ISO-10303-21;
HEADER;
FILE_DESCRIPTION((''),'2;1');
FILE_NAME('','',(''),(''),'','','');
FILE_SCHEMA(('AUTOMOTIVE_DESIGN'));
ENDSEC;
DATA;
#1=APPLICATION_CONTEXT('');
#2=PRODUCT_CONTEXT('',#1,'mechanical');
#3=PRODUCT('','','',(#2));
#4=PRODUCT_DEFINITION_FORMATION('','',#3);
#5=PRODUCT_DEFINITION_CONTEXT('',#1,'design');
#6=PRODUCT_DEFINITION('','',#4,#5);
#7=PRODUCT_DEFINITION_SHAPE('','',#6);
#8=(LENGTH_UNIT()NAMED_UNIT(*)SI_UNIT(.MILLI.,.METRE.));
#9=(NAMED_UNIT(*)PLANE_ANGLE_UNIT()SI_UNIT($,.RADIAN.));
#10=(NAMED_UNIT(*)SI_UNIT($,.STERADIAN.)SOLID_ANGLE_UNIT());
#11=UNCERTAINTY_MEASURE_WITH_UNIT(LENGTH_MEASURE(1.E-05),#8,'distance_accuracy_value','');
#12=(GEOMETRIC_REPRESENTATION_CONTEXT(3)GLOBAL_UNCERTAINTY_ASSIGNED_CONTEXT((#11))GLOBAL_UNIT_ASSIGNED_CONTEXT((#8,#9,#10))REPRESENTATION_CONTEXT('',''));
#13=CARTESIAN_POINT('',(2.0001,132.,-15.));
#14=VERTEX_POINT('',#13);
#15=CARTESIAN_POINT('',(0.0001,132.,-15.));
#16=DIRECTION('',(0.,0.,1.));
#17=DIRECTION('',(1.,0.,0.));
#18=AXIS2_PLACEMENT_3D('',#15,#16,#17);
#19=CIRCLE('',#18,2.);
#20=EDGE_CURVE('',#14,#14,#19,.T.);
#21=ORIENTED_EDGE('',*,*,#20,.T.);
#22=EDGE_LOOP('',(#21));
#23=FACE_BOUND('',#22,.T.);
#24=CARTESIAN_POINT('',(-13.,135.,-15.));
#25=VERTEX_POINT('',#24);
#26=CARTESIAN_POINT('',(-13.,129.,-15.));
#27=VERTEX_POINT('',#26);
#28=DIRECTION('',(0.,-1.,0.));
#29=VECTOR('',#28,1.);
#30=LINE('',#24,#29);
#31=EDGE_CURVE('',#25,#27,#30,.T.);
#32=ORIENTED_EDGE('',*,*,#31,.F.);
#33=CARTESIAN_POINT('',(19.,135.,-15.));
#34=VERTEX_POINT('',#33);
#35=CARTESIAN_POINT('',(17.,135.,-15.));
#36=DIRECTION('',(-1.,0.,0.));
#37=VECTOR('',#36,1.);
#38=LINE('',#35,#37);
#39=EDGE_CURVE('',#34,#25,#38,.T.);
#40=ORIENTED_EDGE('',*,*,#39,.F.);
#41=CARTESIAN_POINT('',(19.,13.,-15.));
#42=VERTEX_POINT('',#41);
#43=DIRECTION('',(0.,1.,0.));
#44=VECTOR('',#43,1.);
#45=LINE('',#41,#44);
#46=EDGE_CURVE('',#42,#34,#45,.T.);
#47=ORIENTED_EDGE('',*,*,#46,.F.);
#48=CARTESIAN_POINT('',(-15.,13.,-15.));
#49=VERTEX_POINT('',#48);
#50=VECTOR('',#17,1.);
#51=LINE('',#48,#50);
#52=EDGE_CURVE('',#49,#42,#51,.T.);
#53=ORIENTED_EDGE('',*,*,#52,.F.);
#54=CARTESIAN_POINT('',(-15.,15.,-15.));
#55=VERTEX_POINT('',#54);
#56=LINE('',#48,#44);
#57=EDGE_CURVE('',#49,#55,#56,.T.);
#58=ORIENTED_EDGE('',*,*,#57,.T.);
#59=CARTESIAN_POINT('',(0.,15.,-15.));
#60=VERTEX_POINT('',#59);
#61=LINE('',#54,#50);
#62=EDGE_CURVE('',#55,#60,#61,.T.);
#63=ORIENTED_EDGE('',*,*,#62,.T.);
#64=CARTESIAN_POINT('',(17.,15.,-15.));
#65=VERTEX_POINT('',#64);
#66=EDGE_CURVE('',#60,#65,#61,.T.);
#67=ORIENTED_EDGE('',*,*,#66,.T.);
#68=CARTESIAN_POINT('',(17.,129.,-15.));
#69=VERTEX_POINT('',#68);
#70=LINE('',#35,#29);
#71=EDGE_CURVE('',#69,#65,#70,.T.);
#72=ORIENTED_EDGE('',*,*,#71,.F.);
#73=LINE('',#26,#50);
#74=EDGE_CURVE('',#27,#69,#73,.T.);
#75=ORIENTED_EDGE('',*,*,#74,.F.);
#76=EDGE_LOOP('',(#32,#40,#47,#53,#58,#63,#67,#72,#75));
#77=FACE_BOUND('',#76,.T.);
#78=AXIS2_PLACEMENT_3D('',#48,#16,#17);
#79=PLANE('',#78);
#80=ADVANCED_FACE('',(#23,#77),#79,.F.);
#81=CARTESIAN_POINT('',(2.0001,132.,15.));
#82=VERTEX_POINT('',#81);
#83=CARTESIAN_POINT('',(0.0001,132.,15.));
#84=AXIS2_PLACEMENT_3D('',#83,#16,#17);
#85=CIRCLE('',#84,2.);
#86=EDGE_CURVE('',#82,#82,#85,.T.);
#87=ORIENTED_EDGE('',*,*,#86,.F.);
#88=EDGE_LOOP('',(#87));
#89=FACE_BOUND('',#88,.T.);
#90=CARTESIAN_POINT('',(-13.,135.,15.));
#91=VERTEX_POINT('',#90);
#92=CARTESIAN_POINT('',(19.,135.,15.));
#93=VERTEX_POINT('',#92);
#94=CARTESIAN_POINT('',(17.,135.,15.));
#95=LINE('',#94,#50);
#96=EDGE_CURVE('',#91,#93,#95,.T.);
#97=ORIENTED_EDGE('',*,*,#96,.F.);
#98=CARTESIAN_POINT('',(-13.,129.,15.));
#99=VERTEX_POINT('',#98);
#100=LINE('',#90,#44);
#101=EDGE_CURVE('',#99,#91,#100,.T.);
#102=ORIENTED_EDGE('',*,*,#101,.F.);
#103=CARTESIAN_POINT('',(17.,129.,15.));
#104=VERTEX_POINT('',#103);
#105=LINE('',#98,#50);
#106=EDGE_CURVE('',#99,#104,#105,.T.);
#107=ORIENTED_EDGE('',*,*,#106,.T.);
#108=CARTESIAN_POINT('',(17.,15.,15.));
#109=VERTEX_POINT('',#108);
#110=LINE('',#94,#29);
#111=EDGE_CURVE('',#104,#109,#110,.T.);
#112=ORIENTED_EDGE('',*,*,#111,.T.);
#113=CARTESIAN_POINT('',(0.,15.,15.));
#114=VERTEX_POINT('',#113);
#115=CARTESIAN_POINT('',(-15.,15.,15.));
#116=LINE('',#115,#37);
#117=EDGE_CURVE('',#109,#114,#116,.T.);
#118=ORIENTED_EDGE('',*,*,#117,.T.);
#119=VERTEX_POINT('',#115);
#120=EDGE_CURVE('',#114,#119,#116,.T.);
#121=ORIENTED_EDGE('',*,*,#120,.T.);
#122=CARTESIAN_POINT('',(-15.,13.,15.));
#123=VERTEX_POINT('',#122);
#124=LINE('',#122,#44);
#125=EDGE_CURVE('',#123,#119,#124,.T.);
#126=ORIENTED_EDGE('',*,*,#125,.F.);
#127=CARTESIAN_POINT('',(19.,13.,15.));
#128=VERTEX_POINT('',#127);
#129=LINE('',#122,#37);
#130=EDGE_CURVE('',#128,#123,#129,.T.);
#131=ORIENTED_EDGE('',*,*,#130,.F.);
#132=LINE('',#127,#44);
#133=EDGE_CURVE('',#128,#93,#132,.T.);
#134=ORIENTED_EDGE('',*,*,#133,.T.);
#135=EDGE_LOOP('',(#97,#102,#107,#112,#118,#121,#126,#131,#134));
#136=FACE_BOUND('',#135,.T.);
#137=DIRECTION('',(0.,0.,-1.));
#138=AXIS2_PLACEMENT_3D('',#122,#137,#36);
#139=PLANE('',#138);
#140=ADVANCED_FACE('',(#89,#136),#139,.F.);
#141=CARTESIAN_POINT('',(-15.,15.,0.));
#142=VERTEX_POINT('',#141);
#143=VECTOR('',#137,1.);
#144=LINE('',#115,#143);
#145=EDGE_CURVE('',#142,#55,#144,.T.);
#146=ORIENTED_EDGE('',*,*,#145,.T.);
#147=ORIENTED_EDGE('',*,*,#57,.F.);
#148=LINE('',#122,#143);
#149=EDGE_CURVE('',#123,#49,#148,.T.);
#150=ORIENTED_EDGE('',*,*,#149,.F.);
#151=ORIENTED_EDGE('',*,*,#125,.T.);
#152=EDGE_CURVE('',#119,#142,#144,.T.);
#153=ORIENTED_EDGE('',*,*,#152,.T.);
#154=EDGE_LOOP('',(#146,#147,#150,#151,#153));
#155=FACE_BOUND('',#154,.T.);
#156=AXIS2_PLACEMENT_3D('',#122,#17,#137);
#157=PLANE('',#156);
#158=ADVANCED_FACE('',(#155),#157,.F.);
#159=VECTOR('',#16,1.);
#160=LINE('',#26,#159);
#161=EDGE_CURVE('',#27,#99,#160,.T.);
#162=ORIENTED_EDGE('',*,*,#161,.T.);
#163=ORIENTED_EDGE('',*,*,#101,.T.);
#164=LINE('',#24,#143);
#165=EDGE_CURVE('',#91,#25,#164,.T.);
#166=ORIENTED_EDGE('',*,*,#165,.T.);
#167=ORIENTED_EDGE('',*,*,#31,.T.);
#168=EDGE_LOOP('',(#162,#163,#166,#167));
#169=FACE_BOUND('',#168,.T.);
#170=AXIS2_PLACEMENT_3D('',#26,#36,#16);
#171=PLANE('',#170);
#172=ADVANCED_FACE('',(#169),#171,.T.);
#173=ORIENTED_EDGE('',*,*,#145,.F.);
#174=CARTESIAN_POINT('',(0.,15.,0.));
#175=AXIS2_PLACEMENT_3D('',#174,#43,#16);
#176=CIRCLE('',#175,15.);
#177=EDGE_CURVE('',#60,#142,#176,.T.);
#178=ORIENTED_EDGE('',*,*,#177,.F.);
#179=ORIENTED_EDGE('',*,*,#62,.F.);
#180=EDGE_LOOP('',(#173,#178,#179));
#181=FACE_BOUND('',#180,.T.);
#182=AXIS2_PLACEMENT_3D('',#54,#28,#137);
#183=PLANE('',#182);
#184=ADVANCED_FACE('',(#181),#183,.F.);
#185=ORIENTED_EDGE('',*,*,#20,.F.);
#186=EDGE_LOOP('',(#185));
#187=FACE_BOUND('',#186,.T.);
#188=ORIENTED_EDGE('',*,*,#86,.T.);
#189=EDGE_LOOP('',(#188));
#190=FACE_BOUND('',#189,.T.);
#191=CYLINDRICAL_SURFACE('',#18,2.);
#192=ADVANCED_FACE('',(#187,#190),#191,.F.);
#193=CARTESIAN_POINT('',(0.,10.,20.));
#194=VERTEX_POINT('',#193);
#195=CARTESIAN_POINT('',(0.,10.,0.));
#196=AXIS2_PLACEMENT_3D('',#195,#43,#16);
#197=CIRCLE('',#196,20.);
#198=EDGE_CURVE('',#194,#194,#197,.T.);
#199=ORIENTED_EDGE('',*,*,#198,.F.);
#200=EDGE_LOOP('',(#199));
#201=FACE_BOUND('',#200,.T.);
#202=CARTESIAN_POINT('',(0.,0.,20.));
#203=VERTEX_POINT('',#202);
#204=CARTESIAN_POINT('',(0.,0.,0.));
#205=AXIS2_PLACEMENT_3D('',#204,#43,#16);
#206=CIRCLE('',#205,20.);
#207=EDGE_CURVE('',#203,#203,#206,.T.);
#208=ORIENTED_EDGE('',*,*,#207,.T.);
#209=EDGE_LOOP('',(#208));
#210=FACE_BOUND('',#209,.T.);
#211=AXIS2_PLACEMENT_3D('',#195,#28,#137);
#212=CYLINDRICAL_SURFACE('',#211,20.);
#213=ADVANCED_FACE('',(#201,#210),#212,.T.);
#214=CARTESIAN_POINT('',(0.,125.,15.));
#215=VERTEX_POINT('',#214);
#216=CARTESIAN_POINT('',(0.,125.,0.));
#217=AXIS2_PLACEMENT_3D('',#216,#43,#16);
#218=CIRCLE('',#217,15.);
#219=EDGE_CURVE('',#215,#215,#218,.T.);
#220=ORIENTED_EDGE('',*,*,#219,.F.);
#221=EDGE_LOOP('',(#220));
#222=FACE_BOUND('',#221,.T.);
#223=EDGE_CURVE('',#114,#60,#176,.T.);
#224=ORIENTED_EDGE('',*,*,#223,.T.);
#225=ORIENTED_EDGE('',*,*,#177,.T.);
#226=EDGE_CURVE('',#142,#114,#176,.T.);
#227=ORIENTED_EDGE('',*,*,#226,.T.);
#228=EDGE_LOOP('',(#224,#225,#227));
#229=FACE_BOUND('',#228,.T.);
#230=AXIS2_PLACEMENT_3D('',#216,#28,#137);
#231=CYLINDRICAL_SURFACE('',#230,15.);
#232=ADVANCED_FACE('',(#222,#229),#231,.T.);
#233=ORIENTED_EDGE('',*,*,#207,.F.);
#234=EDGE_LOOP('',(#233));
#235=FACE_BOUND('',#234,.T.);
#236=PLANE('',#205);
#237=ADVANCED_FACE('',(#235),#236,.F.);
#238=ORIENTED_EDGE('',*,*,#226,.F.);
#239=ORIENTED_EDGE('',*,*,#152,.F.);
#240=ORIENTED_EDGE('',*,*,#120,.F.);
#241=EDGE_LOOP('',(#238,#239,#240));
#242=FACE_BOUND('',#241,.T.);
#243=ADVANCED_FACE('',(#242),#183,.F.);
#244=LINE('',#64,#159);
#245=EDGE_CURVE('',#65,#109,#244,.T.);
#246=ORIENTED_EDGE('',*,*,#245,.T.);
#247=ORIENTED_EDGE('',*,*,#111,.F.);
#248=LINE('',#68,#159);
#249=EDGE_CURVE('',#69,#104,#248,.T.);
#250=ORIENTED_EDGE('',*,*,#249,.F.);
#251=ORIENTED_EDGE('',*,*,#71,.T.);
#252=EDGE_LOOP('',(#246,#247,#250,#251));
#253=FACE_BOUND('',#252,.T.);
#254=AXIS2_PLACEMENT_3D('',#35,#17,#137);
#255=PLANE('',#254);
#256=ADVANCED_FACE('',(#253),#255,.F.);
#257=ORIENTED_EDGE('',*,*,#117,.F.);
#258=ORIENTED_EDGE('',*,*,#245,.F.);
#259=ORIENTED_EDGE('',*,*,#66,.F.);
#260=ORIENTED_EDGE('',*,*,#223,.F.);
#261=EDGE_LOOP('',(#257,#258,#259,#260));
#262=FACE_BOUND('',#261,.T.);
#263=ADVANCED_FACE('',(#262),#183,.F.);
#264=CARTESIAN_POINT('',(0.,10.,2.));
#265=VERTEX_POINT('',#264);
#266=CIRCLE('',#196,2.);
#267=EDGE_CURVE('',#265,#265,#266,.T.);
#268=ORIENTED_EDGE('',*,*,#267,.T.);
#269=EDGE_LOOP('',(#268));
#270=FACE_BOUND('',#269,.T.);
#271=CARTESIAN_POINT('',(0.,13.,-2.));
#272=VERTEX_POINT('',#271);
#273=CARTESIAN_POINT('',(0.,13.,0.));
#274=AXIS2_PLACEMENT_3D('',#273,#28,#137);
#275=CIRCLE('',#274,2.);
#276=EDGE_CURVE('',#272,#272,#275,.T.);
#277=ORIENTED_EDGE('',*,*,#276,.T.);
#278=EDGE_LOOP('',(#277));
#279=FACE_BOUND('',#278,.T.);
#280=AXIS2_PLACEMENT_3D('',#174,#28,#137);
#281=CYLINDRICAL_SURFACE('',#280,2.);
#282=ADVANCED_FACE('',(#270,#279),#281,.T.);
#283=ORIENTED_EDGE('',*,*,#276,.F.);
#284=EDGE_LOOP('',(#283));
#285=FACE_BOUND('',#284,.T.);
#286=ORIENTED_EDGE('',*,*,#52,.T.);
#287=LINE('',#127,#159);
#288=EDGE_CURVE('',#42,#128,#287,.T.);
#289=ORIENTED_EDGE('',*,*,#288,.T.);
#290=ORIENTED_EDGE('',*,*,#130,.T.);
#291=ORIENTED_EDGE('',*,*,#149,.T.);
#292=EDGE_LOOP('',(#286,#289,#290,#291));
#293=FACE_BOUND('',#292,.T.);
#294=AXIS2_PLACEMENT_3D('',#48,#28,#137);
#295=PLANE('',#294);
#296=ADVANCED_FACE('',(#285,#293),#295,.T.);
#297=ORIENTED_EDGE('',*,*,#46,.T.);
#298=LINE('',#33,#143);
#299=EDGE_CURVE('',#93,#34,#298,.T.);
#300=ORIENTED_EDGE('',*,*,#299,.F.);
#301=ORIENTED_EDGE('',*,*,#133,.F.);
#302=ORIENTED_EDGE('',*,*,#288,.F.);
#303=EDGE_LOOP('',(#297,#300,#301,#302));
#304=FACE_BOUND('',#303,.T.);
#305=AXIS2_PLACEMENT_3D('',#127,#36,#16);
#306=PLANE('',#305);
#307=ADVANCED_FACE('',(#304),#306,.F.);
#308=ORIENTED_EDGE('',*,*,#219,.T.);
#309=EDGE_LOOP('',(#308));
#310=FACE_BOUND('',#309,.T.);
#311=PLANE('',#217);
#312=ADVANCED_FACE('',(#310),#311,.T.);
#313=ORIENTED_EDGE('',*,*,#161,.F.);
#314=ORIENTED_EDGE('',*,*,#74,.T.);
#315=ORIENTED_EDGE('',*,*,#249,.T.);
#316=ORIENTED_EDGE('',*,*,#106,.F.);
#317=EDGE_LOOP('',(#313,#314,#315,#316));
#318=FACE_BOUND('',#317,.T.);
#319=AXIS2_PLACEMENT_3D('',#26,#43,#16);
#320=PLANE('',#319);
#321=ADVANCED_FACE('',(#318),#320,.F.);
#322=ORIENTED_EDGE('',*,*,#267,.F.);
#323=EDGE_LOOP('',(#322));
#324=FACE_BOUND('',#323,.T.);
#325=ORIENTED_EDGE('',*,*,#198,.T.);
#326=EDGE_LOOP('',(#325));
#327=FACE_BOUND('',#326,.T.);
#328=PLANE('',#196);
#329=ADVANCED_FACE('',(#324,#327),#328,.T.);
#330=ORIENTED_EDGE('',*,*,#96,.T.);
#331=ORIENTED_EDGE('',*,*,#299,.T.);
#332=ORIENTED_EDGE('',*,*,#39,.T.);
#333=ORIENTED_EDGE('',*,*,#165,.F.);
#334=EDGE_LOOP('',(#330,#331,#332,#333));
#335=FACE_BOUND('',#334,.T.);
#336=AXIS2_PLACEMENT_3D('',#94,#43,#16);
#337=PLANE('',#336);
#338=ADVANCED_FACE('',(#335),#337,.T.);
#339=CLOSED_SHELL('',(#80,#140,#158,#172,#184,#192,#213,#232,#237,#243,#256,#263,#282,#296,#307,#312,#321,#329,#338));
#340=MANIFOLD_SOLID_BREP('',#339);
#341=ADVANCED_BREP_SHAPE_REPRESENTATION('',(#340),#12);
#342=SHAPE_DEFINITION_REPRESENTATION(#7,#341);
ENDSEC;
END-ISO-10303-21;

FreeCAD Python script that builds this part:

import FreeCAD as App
import Part
import Sketcher

V = App.Vector

doc = App.newDocument("Part")
params = doc.addObject("Spreadsheet::Sheet", "Params")
for row, (alias, value) in enumerate([
    ("sketch1_diameter", "40 mm"),
    ("pad1_length", "10 mm"),
    ("sketch2_diameter", "4 mm"),
    ("pad2_length", "5 mm"),
    ("sketch3_diameter", "30 mm"),
    ("pad3_length", "110 mm"),
    ("sketch4_width", "34 mm"),
    ("sketch4_height", "30 mm"),
    ("pad4_length", "2 mm"),
    ("sketch5_width", "2 mm"),
    ("sketch5_height", "30 mm"),
    ("pad5_length", "120 mm"),
    ("sketch6_width", "6 mm"),
    ("sketch6_height", "30 mm"),
    ("pad6_length", "30 mm"),
    ("sketch7_diameter", "4 mm"),
    ("pocket1_length", "30 mm"),
], start=1):
    params.set(f"A{row}", alias)
    params.set(f"B{row}", "=" + value)
    params.setAlias(f"B{row}", alias)

body = doc.addObject("PartDesign::Body", "Body")

# Sketch on XZ plane
sketch1 = body.newObject("Sketcher::SketchObject", "Sketch")
sketch1.AttachmentSupport = (doc.getObject("XZ_Plane"), [""])
sketch1.MapMode = "FlatFace"
sketch1.addGeometry(Part.Circle(V(0, 0, 0), V(0, 0, 1), 20), False)
sketch1.addConstraint([
    Sketcher.Constraint("Coincident", 0, 3, -1, 1),
    Sketcher.Constraint("Diameter", 0, 40.0),
])
sketch1.setExpression("Constraints[1]", "Params.sketch1_diameter")
pad1 = body.newObject("PartDesign::Pad", "Pad")
pad1.Profile = sketch1
pad1.setExpression("Length", "Params.pad1_length")
pad1.Reversed = True

# Sketch on XZ plane
sketch2 = body.newObject("Sketcher::SketchObject", "Sketch001")
sketch2.AttachmentSupport = (doc.getObject("XZ_Plane"), [""])
sketch2.MapMode = "FlatFace"
sketch2.AttachmentOffset = App.Placement(V(0, 0, -10), App.Rotation())
sketch2.addGeometry(Part.Circle(V(0, 0, 0), V(0, 0, 1), 2), False)
sketch2.addConstraint([
    Sketcher.Constraint("Coincident", 0, 3, -1, 1),
    Sketcher.Constraint("Diameter", 0, 4.0),
])
sketch2.setExpression("Constraints[1]", "Params.sketch2_diameter")
pad2 = body.newObject("PartDesign::Pad", "Pad001")
pad2.Profile = sketch2
pad2.setExpression("Length", "Params.pad2_length")
pad2.Reversed = True

# Sketch on XZ plane
sketch3 = body.newObject("Sketcher::SketchObject", "Sketch002")
sketch3.AttachmentSupport = (doc.getObject("XZ_Plane"), [""])
sketch3.MapMode = "FlatFace"
sketch3.AttachmentOffset = App.Placement(V(0, 0, -15), App.Rotation())
sketch3.addGeometry(Part.Circle(V(0, 0, 0), V(0, 0, 1), 15), False)
sketch3.addConstraint([
    Sketcher.Constraint("Coincident", 0, 3, -1, 1),
    Sketcher.Constraint("Diameter", 0, 30.0),
])
sketch3.setExpression("Constraints[1]", "Params.sketch3_diameter")
pad3 = body.newObject("PartDesign::Pad", "Pad002")
pad3.Profile = sketch3
pad3.setExpression("Length", "Params.pad3_length")
pad3.Reversed = True

# Sketch on XZ plane
sketch4 = body.newObject("Sketcher::SketchObject", "Sketch003")
sketch4.AttachmentSupport = (doc.getObject("XZ_Plane"), [""])
sketch4.MapMode = "FlatFace"
sketch4.AttachmentOffset = App.Placement(V(0, 0, -15), App.Rotation())
sketch4.addGeometry([
    Part.LineSegment(V(-15, 15, 0), V(-15, -15, 0)),
    Part.LineSegment(V(-15, -15, 0), V(19, -15, 0)),
    Part.LineSegment(V(19, -15, 0), V(19, 15, 0)),
    Part.LineSegment(V(19, 15, 0), V(-15, 15, 0)),
], False)
sketch4.addConstraint([
    Sketcher.Constraint("Coincident", 0, 2, 1, 1),
    Sketcher.Constraint("Coincident", 1, 2, 2, 1),
    Sketcher.Constraint("Coincident", 2, 2, 3, 1),
    Sketcher.Constraint("Coincident", 3, 2, 0, 1),
    Sketcher.Constraint("Vertical", 0),
    Sketcher.Constraint("Horizontal", 1),
    Sketcher.Constraint("Vertical", 2),
    Sketcher.Constraint("Horizontal", 3),
    Sketcher.Constraint("DistanceX", 1, 1, 1, 2, 34.0),
    Sketcher.Constraint("DistanceY", 0, 2, 0, 1, 30.0),
    Sketcher.Constraint("DistanceX", 0, 2, -1, 1, 15.0),
    Sketcher.Constraint("DistanceY", 0, 2, -1, 1, 15.0),
])
sketch4.setExpression("Constraints[8]", "Params.sketch4_width")
sketch4.setExpression("Constraints[9]", "Params.sketch4_height")
pad4 = body.newObject("PartDesign::Pad", "Pad003")
pad4.Profile = sketch4
pad4.setExpression("Length", "Params.pad4_length")

# Sketch on XZ plane
sketch5 = body.newObject("Sketcher::SketchObject", "Sketch004")
sketch5.AttachmentSupport = (doc.getObject("XZ_Plane"), [""])
sketch5.MapMode = "FlatFace"
sketch5.AttachmentOffset = App.Placement(V(0, 0, -15), App.Rotation())
sketch5.addGeometry([
    Part.LineSegment(V(17, -15, 0), V(17, 15, 0)),
    Part.LineSegment(V(17, 15, 0), V(19, 15, 0)),
    Part.LineSegment(V(19, 15, 0), V(19, -15, 0)),
    Part.LineSegment(V(19, -15, 0), V(17, -15, 0)),
], False)
sketch5.addConstraint([
    Sketcher.Constraint("Coincident", 0, 2, 1, 1),
    Sketcher.Constraint("Coincident", 1, 2, 2, 1),
    Sketcher.Constraint("Coincident", 2, 2, 3, 1),
    Sketcher.Constraint("Coincident", 3, 2, 0, 1),
    Sketcher.Constraint("Vertical", 0),
    Sketcher.Constraint("Horizontal", 1),
    Sketcher.Constraint("Vertical", 2),
    Sketcher.Constraint("Horizontal", 3),
    Sketcher.Constraint("DistanceX", 1, 1, 1, 2, 2.0),
    Sketcher.Constraint("DistanceY", 0, 1, 0, 2, 30.0),
    Sketcher.Constraint("DistanceX", -1, 1, 0, 2, 17.0),
    Sketcher.Constraint("DistanceY", -1, 1, 0, 2, 15.0),
])
sketch5.setExpression("Constraints[8]", "Params.sketch5_width")
sketch5.setExpression("Constraints[9]", "Params.sketch5_height")
pad5 = body.newObject("PartDesign::Pad", "Pad004")
pad5.Profile = sketch5
pad5.setExpression("Length", "Params.pad5_length")
pad5.Reversed = True

# Sketch on YZ plane
sketch6 = body.newObject("Sketcher::SketchObject", "Sketch005")
sketch6.AttachmentSupport = (doc.getObject("YZ_Plane"), [""])
sketch6.MapMode = "FlatFace"
sketch6.AttachmentOffset = App.Placement(V(0, 0, 17), App.Rotation())
sketch6.addGeometry([
    Part.LineSegment(V(135, -15, 0), V(129, -15, 0)),
    Part.LineSegment(V(129, -15, 0), V(129, 15, 0)),
    Part.LineSegment(V(129, 15, 0), V(135, 15, 0)),
    Part.LineSegment(V(135, 15, 0), V(135, -15, 0)),
], False)
sketch6.addConstraint([
    Sketcher.Constraint("Coincident", 0, 2, 1, 1),
    Sketcher.Constraint("Coincident", 1, 2, 2, 1),
    Sketcher.Constraint("Coincident", 2, 2, 3, 1),
    Sketcher.Constraint("Coincident", 3, 2, 0, 1),
    Sketcher.Constraint("Horizontal", 0),
    Sketcher.Constraint("Vertical", 1),
    Sketcher.Constraint("Horizontal", 2),
    Sketcher.Constraint("Vertical", 3),
    Sketcher.Constraint("DistanceX", 0, 2, 0, 1, 6.0),
    Sketcher.Constraint("DistanceY", 1, 1, 1, 2, 30.0),
    Sketcher.Constraint("DistanceX", -1, 1, 0, 2, 129.0),
    Sketcher.Constraint("DistanceY", 0, 2, -1, 1, 15.0),
])
sketch6.setExpression("Constraints[8]", "Params.sketch6_width")
sketch6.setExpression("Constraints[9]", "Params.sketch6_height")
pad6 = body.newObject("PartDesign::Pad", "Pad005")
pad6.Profile = sketch6
pad6.setExpression("Length", "Params.pad6_length")
pad6.Reversed = True

# Sketch on XY plane
sketch7 = body.newObject("Sketcher::SketchObject", "Sketch006")
sketch7.AttachmentSupport = (doc.getObject("XY_Plane"), [""])
sketch7.MapMode = "FlatFace"
sketch7.AttachmentOffset = App.Placement(V(0, 0, 15), App.Rotation())
sketch7.addGeometry(Part.Circle(V(0, 132, 0), V(0, 0, 1), 2), False)
sketch7.addConstraint([
    Sketcher.Constraint("Diameter", 0, 4.0),
    Sketcher.Constraint("DistanceY", -1, 1, 0, 3, 132.0),
    Sketcher.Constraint("DistanceX", -1, 1, 0, 3, 0.0001),
])
sketch7.setExpression("Constraints[0]", "Params.sketch7_diameter")
pocket1 = body.newObject("PartDesign::Pocket", "Pocket")
pocket1.Profile = sketch7
pocket1.setExpression("Length", "Params.pocket1_length")

doc.recompute()
